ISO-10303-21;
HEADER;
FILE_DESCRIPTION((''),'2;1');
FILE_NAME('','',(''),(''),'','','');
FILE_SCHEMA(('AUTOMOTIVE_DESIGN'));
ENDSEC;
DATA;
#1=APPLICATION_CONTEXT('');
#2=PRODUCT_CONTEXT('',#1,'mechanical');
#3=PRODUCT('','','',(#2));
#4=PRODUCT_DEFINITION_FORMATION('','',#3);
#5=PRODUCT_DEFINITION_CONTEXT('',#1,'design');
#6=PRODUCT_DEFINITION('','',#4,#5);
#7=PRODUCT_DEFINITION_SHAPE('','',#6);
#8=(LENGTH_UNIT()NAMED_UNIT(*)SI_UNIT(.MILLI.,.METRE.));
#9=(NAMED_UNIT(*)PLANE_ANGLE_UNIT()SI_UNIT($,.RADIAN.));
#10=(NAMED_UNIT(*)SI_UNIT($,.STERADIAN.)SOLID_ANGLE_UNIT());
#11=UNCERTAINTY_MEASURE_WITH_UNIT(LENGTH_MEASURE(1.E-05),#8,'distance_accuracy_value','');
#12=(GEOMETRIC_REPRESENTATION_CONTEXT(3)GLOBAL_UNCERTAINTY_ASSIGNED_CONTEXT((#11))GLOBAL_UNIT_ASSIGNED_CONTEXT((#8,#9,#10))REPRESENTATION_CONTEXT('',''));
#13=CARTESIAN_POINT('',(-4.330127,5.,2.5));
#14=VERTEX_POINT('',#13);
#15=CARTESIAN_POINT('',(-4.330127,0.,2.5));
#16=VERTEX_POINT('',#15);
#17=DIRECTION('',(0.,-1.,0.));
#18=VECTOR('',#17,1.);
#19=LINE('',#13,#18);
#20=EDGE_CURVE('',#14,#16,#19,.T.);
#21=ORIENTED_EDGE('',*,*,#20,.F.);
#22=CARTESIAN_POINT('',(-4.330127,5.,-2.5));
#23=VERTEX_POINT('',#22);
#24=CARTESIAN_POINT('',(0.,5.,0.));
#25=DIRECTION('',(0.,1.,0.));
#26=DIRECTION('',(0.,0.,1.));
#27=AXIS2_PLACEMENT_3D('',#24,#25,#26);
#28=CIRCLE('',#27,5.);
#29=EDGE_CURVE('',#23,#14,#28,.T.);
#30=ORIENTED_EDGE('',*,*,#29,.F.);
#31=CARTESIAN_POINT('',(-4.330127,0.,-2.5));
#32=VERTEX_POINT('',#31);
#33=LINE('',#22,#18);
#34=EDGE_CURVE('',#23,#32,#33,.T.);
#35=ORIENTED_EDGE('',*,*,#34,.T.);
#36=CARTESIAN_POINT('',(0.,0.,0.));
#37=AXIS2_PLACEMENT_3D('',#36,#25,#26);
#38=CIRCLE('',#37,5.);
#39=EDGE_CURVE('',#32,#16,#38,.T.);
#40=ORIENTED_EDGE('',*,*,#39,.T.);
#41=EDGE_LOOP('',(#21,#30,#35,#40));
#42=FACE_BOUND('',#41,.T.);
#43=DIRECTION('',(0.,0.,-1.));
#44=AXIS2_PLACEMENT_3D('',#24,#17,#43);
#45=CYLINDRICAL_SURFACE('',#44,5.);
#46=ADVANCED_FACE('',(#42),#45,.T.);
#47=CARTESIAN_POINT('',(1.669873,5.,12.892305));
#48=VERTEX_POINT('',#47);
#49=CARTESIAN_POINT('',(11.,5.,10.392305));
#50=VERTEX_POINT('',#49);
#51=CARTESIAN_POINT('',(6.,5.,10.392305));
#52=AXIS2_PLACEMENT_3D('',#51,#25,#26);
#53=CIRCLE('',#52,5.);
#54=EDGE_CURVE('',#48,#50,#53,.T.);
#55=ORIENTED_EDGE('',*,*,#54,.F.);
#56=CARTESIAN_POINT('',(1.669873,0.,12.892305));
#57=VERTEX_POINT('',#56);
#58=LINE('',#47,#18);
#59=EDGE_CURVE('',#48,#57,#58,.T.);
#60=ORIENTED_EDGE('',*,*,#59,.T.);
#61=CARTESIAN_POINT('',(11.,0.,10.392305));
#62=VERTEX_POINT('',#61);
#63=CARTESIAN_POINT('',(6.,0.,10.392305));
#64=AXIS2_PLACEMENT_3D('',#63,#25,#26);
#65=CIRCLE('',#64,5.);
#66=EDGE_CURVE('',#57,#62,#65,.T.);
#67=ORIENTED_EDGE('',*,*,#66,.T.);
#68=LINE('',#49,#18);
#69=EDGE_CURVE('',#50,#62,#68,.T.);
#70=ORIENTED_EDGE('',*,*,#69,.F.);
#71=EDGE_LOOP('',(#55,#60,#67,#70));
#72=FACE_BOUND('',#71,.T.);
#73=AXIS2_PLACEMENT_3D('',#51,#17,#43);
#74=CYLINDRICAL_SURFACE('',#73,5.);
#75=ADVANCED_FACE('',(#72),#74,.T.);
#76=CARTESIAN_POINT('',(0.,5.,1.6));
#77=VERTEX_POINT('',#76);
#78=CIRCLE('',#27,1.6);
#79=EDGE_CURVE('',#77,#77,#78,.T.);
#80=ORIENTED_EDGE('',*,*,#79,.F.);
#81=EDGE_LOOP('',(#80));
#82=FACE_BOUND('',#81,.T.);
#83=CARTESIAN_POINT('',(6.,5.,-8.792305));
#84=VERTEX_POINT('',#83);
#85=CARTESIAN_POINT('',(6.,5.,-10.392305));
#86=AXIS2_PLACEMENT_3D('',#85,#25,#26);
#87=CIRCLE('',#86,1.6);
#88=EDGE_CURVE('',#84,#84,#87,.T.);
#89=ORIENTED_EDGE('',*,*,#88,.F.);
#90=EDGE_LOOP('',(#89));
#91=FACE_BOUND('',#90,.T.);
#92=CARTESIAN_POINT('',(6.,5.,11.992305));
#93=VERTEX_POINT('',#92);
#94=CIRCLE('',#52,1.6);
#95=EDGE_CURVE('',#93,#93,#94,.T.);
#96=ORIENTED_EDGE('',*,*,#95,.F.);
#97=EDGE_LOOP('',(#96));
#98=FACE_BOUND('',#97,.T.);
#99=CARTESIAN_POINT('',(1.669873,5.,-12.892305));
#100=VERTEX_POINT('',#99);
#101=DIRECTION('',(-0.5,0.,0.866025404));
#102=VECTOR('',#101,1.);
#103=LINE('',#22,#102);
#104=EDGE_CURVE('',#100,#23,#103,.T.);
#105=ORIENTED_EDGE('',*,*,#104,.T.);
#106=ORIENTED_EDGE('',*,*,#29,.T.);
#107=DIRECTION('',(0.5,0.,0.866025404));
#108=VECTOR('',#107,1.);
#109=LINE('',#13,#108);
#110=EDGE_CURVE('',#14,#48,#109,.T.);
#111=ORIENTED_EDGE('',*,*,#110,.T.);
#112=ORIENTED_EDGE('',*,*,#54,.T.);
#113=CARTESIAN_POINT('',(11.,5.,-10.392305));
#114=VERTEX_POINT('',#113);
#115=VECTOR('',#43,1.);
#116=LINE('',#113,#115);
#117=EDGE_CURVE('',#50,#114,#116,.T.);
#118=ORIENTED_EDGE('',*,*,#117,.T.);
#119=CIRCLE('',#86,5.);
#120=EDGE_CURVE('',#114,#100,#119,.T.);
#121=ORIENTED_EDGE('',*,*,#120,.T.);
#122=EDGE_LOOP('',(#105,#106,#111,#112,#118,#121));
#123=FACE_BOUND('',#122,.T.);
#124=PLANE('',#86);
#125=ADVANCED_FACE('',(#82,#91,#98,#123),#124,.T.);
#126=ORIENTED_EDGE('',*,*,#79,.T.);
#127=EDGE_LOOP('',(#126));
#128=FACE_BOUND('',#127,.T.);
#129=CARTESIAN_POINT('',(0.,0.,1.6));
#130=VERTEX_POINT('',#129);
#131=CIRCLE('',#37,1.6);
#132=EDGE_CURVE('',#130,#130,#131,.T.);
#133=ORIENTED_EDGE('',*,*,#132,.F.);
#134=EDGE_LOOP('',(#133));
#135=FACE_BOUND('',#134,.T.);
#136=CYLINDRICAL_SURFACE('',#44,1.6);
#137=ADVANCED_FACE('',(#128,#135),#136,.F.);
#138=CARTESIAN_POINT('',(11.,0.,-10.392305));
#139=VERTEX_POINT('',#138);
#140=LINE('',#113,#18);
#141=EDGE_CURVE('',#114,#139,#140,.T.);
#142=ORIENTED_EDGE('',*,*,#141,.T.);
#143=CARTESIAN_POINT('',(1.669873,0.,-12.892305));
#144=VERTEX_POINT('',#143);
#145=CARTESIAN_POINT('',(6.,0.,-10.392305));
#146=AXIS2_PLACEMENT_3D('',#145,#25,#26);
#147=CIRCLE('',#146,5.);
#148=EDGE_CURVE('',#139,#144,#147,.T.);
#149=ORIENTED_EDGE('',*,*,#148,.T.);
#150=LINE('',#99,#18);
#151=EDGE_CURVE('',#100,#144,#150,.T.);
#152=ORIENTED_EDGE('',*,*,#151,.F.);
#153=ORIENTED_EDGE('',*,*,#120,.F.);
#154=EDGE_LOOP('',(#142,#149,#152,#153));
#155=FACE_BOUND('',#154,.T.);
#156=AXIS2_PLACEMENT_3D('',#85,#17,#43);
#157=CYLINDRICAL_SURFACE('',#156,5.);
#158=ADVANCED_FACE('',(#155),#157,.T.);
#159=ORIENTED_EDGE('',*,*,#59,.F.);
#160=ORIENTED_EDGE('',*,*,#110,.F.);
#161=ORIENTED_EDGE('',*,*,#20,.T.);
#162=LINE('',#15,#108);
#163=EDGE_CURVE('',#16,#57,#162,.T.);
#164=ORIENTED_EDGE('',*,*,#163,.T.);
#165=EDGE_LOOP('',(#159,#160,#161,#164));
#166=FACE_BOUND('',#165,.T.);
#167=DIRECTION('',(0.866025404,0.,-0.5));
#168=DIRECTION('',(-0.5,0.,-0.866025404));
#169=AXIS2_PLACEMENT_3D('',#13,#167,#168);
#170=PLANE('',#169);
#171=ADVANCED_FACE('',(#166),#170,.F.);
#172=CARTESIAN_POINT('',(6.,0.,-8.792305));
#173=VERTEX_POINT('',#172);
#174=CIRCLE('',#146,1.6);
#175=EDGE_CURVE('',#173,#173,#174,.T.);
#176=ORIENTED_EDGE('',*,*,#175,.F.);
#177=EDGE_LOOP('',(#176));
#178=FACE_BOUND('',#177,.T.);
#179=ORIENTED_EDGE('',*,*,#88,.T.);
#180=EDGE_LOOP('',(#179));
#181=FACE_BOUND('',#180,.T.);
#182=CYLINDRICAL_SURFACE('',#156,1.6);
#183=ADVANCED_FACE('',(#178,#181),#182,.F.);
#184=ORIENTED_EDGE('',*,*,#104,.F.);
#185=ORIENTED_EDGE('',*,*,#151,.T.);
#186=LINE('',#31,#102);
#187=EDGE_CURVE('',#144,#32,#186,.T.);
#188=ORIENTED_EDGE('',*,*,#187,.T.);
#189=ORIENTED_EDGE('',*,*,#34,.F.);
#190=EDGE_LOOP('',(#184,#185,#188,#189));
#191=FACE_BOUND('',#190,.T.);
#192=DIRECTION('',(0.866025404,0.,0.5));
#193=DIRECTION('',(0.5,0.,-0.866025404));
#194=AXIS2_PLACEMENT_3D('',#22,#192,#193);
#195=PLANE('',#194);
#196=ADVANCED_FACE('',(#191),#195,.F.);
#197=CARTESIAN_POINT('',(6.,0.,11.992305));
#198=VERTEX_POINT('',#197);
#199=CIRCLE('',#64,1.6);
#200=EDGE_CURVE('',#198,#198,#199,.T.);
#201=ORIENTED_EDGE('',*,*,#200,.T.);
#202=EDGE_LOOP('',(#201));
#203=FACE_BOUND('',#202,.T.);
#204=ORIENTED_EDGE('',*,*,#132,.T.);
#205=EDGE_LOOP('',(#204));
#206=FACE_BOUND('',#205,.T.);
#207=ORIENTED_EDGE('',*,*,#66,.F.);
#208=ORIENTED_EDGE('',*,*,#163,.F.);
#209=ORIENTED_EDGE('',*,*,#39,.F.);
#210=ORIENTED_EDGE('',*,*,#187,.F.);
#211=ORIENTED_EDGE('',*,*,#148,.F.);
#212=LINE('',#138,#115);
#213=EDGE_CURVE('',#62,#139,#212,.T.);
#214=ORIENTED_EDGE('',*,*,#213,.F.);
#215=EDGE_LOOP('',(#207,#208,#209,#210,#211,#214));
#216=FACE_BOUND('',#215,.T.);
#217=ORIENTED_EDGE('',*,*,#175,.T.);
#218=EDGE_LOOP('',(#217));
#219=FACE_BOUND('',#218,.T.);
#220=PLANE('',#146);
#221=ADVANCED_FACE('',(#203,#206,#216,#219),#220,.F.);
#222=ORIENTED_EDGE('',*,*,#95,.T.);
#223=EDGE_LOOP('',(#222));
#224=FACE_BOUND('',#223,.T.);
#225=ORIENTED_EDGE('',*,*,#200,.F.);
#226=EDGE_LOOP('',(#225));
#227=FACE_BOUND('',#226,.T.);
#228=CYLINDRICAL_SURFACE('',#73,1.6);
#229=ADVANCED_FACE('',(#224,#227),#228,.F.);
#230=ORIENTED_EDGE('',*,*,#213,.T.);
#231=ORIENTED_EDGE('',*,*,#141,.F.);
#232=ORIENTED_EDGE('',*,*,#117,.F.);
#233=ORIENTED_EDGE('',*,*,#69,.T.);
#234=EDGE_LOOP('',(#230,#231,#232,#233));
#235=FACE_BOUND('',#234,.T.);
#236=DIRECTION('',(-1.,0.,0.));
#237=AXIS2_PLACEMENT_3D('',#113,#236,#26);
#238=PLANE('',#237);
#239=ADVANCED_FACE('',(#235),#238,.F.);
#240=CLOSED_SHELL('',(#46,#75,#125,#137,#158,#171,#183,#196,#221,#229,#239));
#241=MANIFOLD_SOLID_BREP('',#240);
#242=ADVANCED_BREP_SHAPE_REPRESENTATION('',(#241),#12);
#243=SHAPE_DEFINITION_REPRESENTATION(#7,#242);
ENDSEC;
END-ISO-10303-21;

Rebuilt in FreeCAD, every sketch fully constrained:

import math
import FreeCAD as App
import Part
import Sketcher

V = App.Vector
Q = App.Units.Quantity

doc = App.newDocument("Part")
params = doc.addObject("Spreadsheet::Sheet", "Params")
for row, (alias, value) in enumerate([
    ("sketch1_radius", "5 mm"),
    ("sketch1_diameter", "3.2 mm"),
    ("sketch1_length", "12 mm"),
    ("pad1_length", "5 mm"),
], start=1):
    params.set(f"A{row}", alias)
    params.set(f"B{row}", "=" + value)
    params.setAlias(f"B{row}", alias)

body = doc.addObject("PartDesign::Body", "Body")

# Sketch on XZ plane
sketch1 = doc.addObject("Sketcher::SketchObject", "Sketch")
body.addObject(sketch1)
sketch1.AttachmentSupport = (doc.XZ_Plane, [""])
sketch1.MapMode = "FlatFace"
sketch1.addGeometry([
    Part.LineSegment(V(11, 10.4, 0), V(11, -10.4, 0)),  # 0
    Part.ArcOfCircle(Part.Circle(V(6, -10.4, 0), V(0, 0, 1), 5), math.radians(-150), math.radians(0)),  # 1
    Part.LineSegment(V(1.7, -12.9, 0), V(-4.3, -2.5, 0)),  # 2
    Part.ArcOfCircle(Part.Circle(V(0, 0, 0), V(0, 0, 1), 5), math.radians(150), math.radians(210)),  # 3
    Part.LineSegment(V(-4.3, 2.5, 0), V(1.7, 12.9, 0)),  # 4
    Part.ArcOfCircle(Part.Circle(V(6, 10.4, 0), V(0, 0, 1), 5), math.radians(0), math.radians(150)),  # 5
    Part.Circle(V(6, 10.4, 0), V(0, 0, 1), 1.6),  # 6
    Part.Circle(V(6, -10.4, 0), V(0, 0, 1), 1.6),  # 7
    Part.Circle(V(0, 0, 0), V(0, 0, 1), 1.6),  # 8
], False)
sketch1.addConstraint([
    Sketcher.Constraint("Tangent", 0, 2, 1, 2),
    Sketcher.Constraint("Tangent", 1, 1, 2, 1),
    Sketcher.Constraint("Tangent", 2, 2, 3, 2),
    Sketcher.Constraint("Tangent", 3, 1, 4, 1),
    Sketcher.Constraint("Tangent", 4, 2, 5, 2),
    Sketcher.Constraint("Tangent", 5, 1, 0, 1),
    Sketcher.Constraint("Vertical", 0),
    Sketcher.Constraint("Coincident", 3, 3, -1, 1),
    Sketcher.Constraint("Coincident", 8, 3, -1, 1),
    Sketcher.Constraint("Coincident", 6, 3, 5, 3),
    Sketcher.Constraint("Coincident", 7, 3, 1, 3),
    Sketcher.Constraint("Equal", 1, 3),
    Sketcher.Constraint("Equal", 3, 5),
    Sketcher.Constraint("Equal", 6, 7),
    Sketcher.Constraint("Equal", 7, 8),
    Sketcher.Constraint("Vertical", 2, 2, 3, 1),
    Sketcher.Constraint("Radius", 1, 5.0),
    Sketcher.Constraint("Diameter", 6, 3.2),
    Sketcher.Constraint("Angle", 2, Q("120 deg")),
    Sketcher.Constraint("Distance", 2, 12.0),
])
sketch1.setExpression("Constraints[16]", "Params.sketch1_radius")
sketch1.setExpression("Constraints[17]", "Params.sketch1_diameter")
sketch1.setExpression("Constraints[19]", "Params.sketch1_length")
pad1 = doc.addObject("PartDesign::Pad", "Pad")
body.addObject(pad1)
pad1.Profile = sketch1
pad1.setExpression("Length", "Params.pad1_length")
pad1.Reversed = True

doc.recompute()
